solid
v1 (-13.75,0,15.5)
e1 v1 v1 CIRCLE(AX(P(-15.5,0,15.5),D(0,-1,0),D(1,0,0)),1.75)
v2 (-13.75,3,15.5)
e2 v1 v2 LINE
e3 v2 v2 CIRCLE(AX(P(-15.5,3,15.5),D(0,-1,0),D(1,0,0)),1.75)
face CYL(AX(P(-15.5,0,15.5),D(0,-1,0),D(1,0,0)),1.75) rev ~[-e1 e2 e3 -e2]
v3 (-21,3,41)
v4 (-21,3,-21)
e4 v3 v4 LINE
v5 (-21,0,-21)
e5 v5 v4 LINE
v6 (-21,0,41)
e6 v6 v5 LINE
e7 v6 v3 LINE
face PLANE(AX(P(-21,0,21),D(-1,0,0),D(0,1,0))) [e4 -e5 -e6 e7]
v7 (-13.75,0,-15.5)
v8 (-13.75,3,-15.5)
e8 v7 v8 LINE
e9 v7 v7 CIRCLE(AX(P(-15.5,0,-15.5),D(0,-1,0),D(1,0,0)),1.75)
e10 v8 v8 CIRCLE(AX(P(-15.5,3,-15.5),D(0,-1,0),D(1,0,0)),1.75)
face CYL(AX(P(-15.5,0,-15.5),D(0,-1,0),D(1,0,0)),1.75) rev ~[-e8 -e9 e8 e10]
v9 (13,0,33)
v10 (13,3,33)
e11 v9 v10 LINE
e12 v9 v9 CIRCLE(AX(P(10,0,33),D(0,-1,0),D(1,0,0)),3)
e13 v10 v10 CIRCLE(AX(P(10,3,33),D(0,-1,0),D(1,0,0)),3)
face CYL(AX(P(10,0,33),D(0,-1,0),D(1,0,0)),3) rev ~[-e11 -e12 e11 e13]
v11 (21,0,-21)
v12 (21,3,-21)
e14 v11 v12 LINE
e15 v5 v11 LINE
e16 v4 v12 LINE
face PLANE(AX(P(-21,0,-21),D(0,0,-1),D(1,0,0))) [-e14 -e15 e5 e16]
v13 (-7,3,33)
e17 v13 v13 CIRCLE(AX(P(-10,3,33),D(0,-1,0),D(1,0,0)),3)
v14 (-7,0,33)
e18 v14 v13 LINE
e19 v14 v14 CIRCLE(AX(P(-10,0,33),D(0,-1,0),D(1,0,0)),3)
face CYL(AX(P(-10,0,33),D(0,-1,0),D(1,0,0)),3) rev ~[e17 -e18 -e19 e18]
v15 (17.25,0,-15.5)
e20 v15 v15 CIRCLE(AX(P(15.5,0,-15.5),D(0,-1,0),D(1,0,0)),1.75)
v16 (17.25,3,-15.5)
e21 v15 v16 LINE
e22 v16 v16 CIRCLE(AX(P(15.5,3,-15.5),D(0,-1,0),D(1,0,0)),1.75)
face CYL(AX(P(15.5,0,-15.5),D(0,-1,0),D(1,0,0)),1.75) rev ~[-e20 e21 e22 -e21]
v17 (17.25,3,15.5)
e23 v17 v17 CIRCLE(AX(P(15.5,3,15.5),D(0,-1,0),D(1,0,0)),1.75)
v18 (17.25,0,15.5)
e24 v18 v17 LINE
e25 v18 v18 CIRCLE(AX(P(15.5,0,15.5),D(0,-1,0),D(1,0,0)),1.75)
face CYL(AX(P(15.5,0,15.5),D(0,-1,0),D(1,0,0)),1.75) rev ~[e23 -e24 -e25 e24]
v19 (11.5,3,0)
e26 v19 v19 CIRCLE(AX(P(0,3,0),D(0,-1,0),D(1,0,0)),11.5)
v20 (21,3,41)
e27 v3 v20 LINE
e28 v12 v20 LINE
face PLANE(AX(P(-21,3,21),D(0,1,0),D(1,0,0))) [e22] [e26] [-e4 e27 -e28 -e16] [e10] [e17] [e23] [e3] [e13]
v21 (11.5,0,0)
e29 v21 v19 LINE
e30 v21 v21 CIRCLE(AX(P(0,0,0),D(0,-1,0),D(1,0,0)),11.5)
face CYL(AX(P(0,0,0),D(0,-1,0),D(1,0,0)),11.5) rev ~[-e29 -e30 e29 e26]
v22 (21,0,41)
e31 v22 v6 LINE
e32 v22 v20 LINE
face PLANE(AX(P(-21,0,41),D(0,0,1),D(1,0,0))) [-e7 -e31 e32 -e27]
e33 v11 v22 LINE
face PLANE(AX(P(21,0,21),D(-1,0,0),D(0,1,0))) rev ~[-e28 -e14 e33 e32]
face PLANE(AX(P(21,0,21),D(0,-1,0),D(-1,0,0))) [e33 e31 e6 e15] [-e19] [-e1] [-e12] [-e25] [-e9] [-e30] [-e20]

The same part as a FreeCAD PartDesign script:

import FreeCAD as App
import Part
import Sketcher


def add_polygon(sketch, points):
    """Adds a closed chain of lines whose ends are joined by coincident constraints."""
    first, n = sketch.GeometryCount, len(points)
    for a, b in zip(points, points[1:] + points[:1]):
        sketch.addGeometry(Part.LineSegment(App.Vector(*a, 0), App.Vector(*b, 0)), False)
    for i in range(n):
        sketch.addConstraint(Sketcher.Constraint("Coincident", first + i, 2, first + (i + 1) % n, 1))

doc = App.newDocument("Part")
params = doc.addObject("Spreadsheet::Sheet", "Params")
for row, (alias, value) in enumerate([
    ("sketch1_width", "42 mm"),
    ("pad1_length", "3 mm"),
    ("sketch2_diameter", "23 mm"),
    ("sketch2_diameter2", "3.5 mm"),
    ("pocket1_length", "3 mm"),
    ("sketch3_width", "42 mm"),
    ("sketch3_height", "3 mm"),
    ("pad2_length", "20 mm"),
    ("sketch4_diameter", "6 mm"),
    ("pocket2_length", "10 mm"),
], start=1):
    params.set(f"A{row}", alias)
    params.set(f"B{row}", "=" + value)
    params.setAlias(f"B{row}", alias)

body = doc.addObject("PartDesign::Body", "Body")

sketch1 = doc.addObject("Sketcher::SketchObject", "Sketch")
body.addObject(sketch1)
sketch1.AttachmentSupport = (doc.XZ_Plane, [""])
sketch1.MapMode = "FlatFace"
add_polygon(sketch1, [(-21, 21), (21, 21), (21, -21), (-21, -21)])
sketch1.addConstraint([
    Sketcher.Constraint("Horizontal", 0),
    Sketcher.Constraint("Vertical", 1),
    Sketcher.Constraint("Horizontal", 2),
    Sketcher.Constraint("Vertical", 3),
    Sketcher.Constraint("Symmetric", 0, 2, 2, 2, -1, 1),
    Sketcher.Constraint("Equal", 2, 1),
    Sketcher.Constraint("DistanceX", 0, 1, 0, 2, 42.0),
])
sketch1.setExpression("Constraints[10]", "Params.sketch1_width")
pad1 = doc.addObject("PartDesign::Pad", "Pad")
body.addObject(pad1)
pad1.Profile = sketch1
pad1.setExpression("Length", "Params.pad1_length")
pad1.Reversed = True

sketch2 = doc.addObject("Sketcher::SketchObject", "Sketch001")
body.addObject(sketch2)
sketch2.AttachmentSupport = (doc.XZ_Plane, [""])
sketch2.MapMode = "FlatFace"
sketch2.addGeometry([
    Part.Circle(App.Vector(0, 0, 0), App.Vector(0, 0, 1), 11.5),
    Part.Circle(App.Vector(-15.5, 15.5, 0), App.Vector(0, 0, 1), 1.8),
    Part.Circle(App.Vector(-15.5, -15.5, 0), App.Vector(0, 0, 1), 1.8),
    Part.Circle(App.Vector(15.5, -15.5, 0), App.Vector(0, 0, 1), 1.8),
    Part.Circle(App.Vector(15.5, 15.5, 0), App.Vector(0, 0, 1), 1.8),
], False)
sketch2.addConstraint([
    Sketcher.Constraint("Coincident", 0, 3, -1, 1),
    Sketcher.Constraint("Equal", 1, 2),
    Sketcher.Constraint("Equal", 2, 3),
    Sketcher.Constraint("Equal", 3, 4),
    Sketcher.Constraint("Symmetric", 1, 3, 3, 3, -1, 1),
    Sketcher.Constraint("Symmetric", 2, 3, 4, 3, -1, 1),
    Sketcher.Constraint("Symmetric", 2, 3, 3, 3, -2),
    Sketcher.Constraint("Diameter", 0, 23.0),
    Sketcher.Constraint("Diameter", 1, 3.5),
    Sketcher.Constraint("DistanceX", 1, 3, -1, 1, 15.5),
    Sketcher.Constraint("DistanceY", -1, 1, 1, 3, 15.5),
])
sketch2.setExpression("Constraints[7]", "Params.sketch2_diameter")
sketch2.setExpression("Constraints[8]", "Params.sketch2_diameter2")
pocket1 = doc.addObject("PartDesign::Pocket", "Pocket")
body.addObject(pocket1)
pocket1.Profile = sketch2
pocket1.setExpression("Length", "Params.pocket1_length")

sketch3 = doc.addObject("Sketcher::SketchObject", "Sketch002")
body.addObject(sketch3)
sketch3.AttachmentSupport = (doc.XY_Plane, [""])
sketch3.MapMode = "FlatFace"
sketch3.AttachmentOffset = App.Placement(App.Vector(0, 0, 21), App.Rotation())
add_polygon(sketch3, [(-21, 0), (21, 0), (21, 3), (-21, 3)])
sketch3.addConstraint([
    Sketcher.Constraint("Horizontal", 0),
    Sketcher.Constraint("Vertical", 1),
    Sketcher.Constraint("Horizontal", 2),
    Sketcher.Constraint("Vertical", 3),
    Sketcher.Constraint("Symmetric", 0, 2, 3, 2, -1, 1),
    Sketcher.Constraint("DistanceX", 0, 1, 0, 2, 42.0),
    Sketcher.Constraint("DistanceY", 1, 1, 1, 2, 3.0),
])
sketch3.setExpression("Constraints[9]", "Params.sketch3_width")
sketch3.setExpression("Constraints[10]", "Params.sketch3_height")
pad2 = doc.addObject("PartDesign::Pad", "Pad001")
body.addObject(pad2)
pad2.Profile = sketch3
pad2.setExpression("Length", "Params.pad2_length")

sketch4 = doc.addObject("Sketcher::SketchObject", "Sketch003")
body.addObject(sketch4)
sketch4.AttachmentSupport = (doc.XZ_Plane, [""])
sketch4.MapMode = "FlatFace"
sketch4.addGeometry([
    Part.Circle(App.Vector(10, 33, 0), App.Vector(0, 0, 1), 3),
    Part.Circle(App.Vector(-10, 33, 0), App.Vector(0, 0, 1), 3),
], False)
sketch4.addConstraint([
    Sketcher.Constraint("Equal", 0, 1),
    Sketcher.Constraint("Symmetric", 0, 3, 1, 3, -2),
    Sketcher.Constraint("Diameter", 0, 6.0),
    Sketcher.Constraint("DistanceX", -1, 1, 0, 3, 10.0),
    Sketcher.Constraint("DistanceY", -1, 1, 0, 3, 33.0),
])
sketch4.setExpression("Constraints[2]", "Params.sketch4_diameter")
pocket2 = doc.addObject("PartDesign::Pocket", "Pocket001")
body.addObject(pocket2)
pocket2.Profile = sketch4
pocket2.setExpression("Length", "Params.pocket2_length")

doc.recompute()
